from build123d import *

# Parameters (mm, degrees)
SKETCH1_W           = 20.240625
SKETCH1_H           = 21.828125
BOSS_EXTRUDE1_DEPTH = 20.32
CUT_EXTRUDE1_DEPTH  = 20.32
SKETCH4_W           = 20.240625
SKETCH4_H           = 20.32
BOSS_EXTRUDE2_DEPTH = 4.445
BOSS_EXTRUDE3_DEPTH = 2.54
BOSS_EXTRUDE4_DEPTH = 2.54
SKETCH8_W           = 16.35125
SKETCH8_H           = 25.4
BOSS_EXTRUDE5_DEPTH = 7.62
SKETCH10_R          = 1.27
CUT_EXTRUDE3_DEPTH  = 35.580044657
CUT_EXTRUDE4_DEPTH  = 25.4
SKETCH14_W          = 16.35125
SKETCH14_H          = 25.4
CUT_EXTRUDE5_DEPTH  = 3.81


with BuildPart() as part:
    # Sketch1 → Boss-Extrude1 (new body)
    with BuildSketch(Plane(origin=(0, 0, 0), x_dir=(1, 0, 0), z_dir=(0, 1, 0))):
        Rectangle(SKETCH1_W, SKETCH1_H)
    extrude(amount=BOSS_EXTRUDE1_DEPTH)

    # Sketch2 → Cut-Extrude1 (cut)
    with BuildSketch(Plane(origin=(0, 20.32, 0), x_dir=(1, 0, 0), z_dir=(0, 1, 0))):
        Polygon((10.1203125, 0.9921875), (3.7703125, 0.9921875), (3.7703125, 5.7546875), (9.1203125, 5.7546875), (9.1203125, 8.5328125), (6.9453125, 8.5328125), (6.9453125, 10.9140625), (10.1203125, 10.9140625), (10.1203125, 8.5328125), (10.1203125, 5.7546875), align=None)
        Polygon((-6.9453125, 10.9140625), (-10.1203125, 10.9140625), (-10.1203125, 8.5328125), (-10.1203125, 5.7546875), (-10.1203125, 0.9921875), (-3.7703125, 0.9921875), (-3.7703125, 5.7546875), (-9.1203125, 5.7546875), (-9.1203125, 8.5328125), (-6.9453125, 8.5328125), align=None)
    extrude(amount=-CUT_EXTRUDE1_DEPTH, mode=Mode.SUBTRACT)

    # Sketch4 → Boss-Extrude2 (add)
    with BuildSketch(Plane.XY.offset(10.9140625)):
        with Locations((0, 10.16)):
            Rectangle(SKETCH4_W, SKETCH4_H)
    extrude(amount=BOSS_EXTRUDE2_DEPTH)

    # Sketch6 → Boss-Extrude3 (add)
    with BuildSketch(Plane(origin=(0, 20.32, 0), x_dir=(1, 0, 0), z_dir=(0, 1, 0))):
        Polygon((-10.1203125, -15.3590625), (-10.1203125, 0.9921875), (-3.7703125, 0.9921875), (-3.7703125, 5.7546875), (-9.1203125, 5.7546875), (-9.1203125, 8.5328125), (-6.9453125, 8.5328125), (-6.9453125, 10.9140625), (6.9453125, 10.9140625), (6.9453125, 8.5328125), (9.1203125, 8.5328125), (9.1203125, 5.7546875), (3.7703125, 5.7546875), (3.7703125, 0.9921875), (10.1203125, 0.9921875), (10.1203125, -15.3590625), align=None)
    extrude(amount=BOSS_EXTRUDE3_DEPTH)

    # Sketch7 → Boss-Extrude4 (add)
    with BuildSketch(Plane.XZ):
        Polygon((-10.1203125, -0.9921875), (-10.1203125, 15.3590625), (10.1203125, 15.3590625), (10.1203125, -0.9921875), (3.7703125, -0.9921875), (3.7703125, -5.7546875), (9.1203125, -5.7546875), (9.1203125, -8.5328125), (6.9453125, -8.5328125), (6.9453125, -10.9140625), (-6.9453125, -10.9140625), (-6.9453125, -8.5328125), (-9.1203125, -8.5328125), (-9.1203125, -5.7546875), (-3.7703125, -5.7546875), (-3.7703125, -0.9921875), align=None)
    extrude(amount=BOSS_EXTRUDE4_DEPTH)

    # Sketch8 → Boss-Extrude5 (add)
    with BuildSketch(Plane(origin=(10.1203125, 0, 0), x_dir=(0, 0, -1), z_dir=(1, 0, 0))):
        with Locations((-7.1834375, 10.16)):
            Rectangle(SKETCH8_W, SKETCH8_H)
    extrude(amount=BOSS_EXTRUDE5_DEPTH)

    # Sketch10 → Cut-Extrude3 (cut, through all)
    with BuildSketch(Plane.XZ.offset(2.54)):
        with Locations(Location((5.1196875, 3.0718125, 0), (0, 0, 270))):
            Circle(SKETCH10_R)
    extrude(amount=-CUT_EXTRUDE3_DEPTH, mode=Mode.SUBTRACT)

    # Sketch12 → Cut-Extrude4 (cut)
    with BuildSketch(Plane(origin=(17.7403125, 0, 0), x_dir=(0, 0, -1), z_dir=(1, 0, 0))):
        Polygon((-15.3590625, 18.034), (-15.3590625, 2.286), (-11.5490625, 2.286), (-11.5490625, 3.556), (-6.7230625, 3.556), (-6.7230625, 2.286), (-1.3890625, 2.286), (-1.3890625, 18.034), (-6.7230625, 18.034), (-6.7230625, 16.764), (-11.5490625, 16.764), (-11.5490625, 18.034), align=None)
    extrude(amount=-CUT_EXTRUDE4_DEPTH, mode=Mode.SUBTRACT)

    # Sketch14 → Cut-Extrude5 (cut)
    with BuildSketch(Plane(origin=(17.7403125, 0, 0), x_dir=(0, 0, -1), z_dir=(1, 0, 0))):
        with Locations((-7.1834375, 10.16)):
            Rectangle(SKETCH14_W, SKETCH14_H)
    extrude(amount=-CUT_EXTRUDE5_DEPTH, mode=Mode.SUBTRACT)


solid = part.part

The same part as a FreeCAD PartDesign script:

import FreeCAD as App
import Part
import Sketcher
Q = App.Units.Quantity

doc = App.newDocument("Part")
body = doc.addObject("PartDesign::Body", "Body")

# Sketch on XZ plane
sketch1 = doc.addObject("Sketcher::SketchObject", "Sketch")
body.addObject(sketch1)
sketch1.AttachmentSupport = (doc.XZ_Plane, [""])
sketch1.MapMode = "FlatFace"
sketch1.addGeometry([
    Part.LineSegment(App.Vector(-10, -11, 0), App.Vector(-10, 11, 0)),
    Part.LineSegment(App.Vector(-10, 11, 0), App.Vector(10, 11, 0)),
    Part.LineSegment(App.Vector(10, 11, 0), App.Vector(10, -11, 0)),
    Part.LineSegment(App.Vector(10, -11, 0), App.Vector(-10, -11, 0)),
], False)
sketch1.addConstraint([
    Sketcher.Constraint("Coincident", 0, 2, 1, 1),
    Sketcher.Constraint("Coincident", 1, 2, 2, 1),
    Sketcher.Constraint("Coincident", 2, 2, 3, 1),
    Sketcher.Constraint("Coincident", 3, 2, 0, 1),
    Sketcher.Constraint("Vertical", 0),
    Sketcher.Constraint("Horizontal", 1),
    Sketcher.Constraint("Vertical", 2),
    Sketcher.Constraint("Horizontal", 3),
    Sketcher.Constraint("Symmetric", 0, 2, 2, 2, -1, 1),
    Sketcher.Constraint("DistanceX", 1, 1, 1, 2, Q("0.796875 in")),
    Sketcher.Constraint("DistanceY", 0, 1, 0, 2, Q("0.859375 in")),
])
pad1 = doc.addObject("PartDesign::Pad", "Pad")
body.addObject(pad1)
pad1.Profile = sketch1
pad1.Length = Q("0.8 in")
pad1.Reversed = True

# Sketch on XZ plane
sketch2 = doc.addObject("Sketcher::SketchObject", "Sketch001")
body.addObject(sketch2)
sketch2.AttachmentSupport = (doc.XZ_Plane, [""])
sketch2.MapMode = "FlatFace"
sketch2.AttachmentOffset = App.Placement(App.Vector(0, 0, -0.8 * 25.4), App.Rotation())
sketch2.addGeometry([
    Part.LineSegment(App.Vector(3.8, -1, 0), App.Vector(10.1, -1, 0)),  # 0
    Part.LineSegment(App.Vector(10.1, -1, 0), App.Vector(10.1, -10.9, 0)),  # 1
    Part.LineSegment(App.Vector(10.1, -10.9, 0), App.Vector(6.9, -10.9, 0)),  # 2
    Part.LineSegment(App.Vector(6.9, -10.9, 0), App.Vector(6.9, -8.5, 0)),  # 3
    Part.LineSegment(App.Vector(6.9, -8.5, 0), App.Vector(9.1, -8.5, 0)),  # 4
    Part.LineSegment(App.Vector(9.1, -8.5, 0), App.Vector(9.1, -5.8, 0)),  # 5
    Part.LineSegment(App.Vector(9.1, -5.8, 0), App.Vector(3.8, -5.8, 0)),  # 6
    Part.LineSegment(App.Vector(3.8, -5.8, 0), App.Vector(3.8, -1, 0)),  # 7
    Part.LineSegment(App.Vector(-6.9, -10.9, 0), App.Vector(-10.1, -10.9, 0)),  # 8
    Part.LineSegment(App.Vector(-10.1, -10.9, 0), App.Vector(-10.1, -1, 0)),  # 9
    Part.LineSegment(App.Vector(-10.1, -1, 0), App.Vector(-3.8, -1, 0)),  # 10
    Part.LineSegment(App.Vector(-3.8, -1, 0), App.Vector(-3.8, -5.8, 0)),  # 11
    Part.LineSegment(App.Vector(-3.8, -5.8, 0), App.Vector(-9.1, -5.8, 0)),  # 12
    Part.LineSegment(App.Vector(-9.1, -5.8, 0), App.Vector(-9.1, -8.5, 0)),  # 13
    Part.LineSegment(App.Vector(-9.1, -8.5, 0), App.Vector(-6.9, -8.5, 0)),  # 14
    Part.LineSegment(App.Vector(-6.9, -8.5, 0), App.Vector(-6.9, -10.9, 0)),  # 15
], False)
sketch2.addConstraint([
    Sketcher.Constraint("Coincident", 0, 2, 1, 1),
    Sketcher.Constraint("Coincident", 1, 2, 2, 1),
    Sketcher.Constraint("Coincident", 2, 2, 3, 1),
    Sketcher.Constraint("Coincident", 3, 2, 4, 1),
    Sketcher.Constraint("Coincident", 4, 2, 5, 1),
    Sketcher.Constraint("Coincident", 5, 2, 6, 1),
    Sketcher.Constraint("Coincident", 6, 2, 7, 1),
    Sketcher.Constraint("Coincident", 7, 2, 0, 1),
    Sketcher.Constraint("Coincident", 8, 2, 9, 1),
    Sketcher.Constraint("Coincident", 9, 2, 10, 1),
    Sketcher.Constraint("Coincident", 10, 2, 11, 1),
    Sketcher.Constraint("Coincident", 11, 2, 12, 1),
    Sketcher.Constraint("Coincident", 12, 2, 13, 1),
    Sketcher.Constraint("Coincident", 13, 2, 14, 1),
    Sketcher.Constraint("Coincident", 14, 2, 15, 1),
    Sketcher.Constraint("Coincident", 15, 2, 8, 1),
    Sketcher.Constraint("Horizontal", 0),
    Sketcher.Constraint("Vertical", 1),
    Sketcher.Constraint("Horizontal", 2),
    Sketcher.Constraint("Vertical", 3),
    Sketcher.Constraint("Horizontal", 4),
    Sketcher.Constraint("Vertical", 5),
    Sketcher.Constraint("Horizontal", 6),
    Sketcher.Constraint("Vertical", 7),
    Sketcher.Constraint("Horizontal", 8),
    Sketcher.Constraint("Vertical", 9),
    Sketcher.Constraint("Horizontal", 10),
    Sketcher.Constraint("Vertical", 11),
    Sketcher.Constraint("Horizontal", 12),
    Sketcher.Constraint("Vertical", 13),
    Sketcher.Constraint("Horizontal", 14),
    Sketcher.Constraint("Vertical", 15),
    Sketcher.Constraint("Symmetric", 1, 2, 8, 2, -2),
    Sketcher.Constraint("Symmetric", 7, 2, 10, 2, -2),
    Sketcher.Constraint("Symmetric", 5, 2, 12, 2, -2),
    Sketcher.Constraint("Symmetric", 3, 2, 14, 2, -2),
    Sketcher.Constraint("DistanceX", 0, 1, 0, 2, Q("0.25 in")),
    Sketcher.Constraint("DistanceX", 2, 2, 2, 1, Q("0.125 in")),
    Sketcher.Constraint("DistanceY", 1, 2, 1, 1, Q("0.390625 in")),
    Sketcher.Constraint("DistanceY", 3, 1, 3, 2, Q("0.09375 in")),
    Sketcher.Constraint("DistanceY", 5, 1, 5, 2, Q("0.109375 in")),
    Sketcher.Constraint("DistanceX", 8, 2, 6, 2, Q("0.546875 in")),
    Sketcher.Constraint("DistanceX", 4, 1, 4, 2, 2.175),
    Sketcher.Constraint("DistanceY", 0, 2, -1, 1, 0.992188),
])
pocket1 = doc.addObject("PartDesign::Pocket", "Pocket")
body.addObject(pocket1)
pocket1.Profile = sketch2
pocket1.Length = Q("0.8 in")
pocket1.Reversed = True

# Sketch on XY plane
sketch3 = doc.addObject("Sketcher::SketchObject", "Sketch002")
body.addObject(sketch3)
sketch3.AttachmentSupport = (doc.XY_Plane, [""])
sketch3.MapMode = "FlatFace"
sketch3.AttachmentOffset = App.Placement(App.Vector(0, 0, 10.914062), App.Rotation())
sketch3.addGeometry([
    Part.LineSegment(App.Vector(-10, 20, 0), App.Vector(-10, 0, 0)),
    Part.LineSegment(App.Vector(-10, 0, 0), App.Vector(10, 0, 0)),
    Part.LineSegment(App.Vector(10, 0, 0), App.Vector(10, 20, 0)),
    Part.LineSegment(App.Vector(10, 20, 0), App.Vector(-10, 20, 0)),
], False)
sketch3.addConstraint([
    Sketcher.Constraint("Coincident", 0, 2, 1, 1),
    Sketcher.Constraint("Coincident", 1, 2, 2, 1),
    Sketcher.Constraint("Coincident", 2, 2, 3, 1),
    Sketcher.Constraint("Coincident", 3, 2, 0, 1),
    Sketcher.Constraint("Vertical", 0),
    Sketcher.Constraint("Horizontal", 1),
    Sketcher.Constraint("Vertical", 2),
    Sketcher.Constraint("Horizontal", 3),
    Sketcher.Constraint("Symmetric", 0, 2, 1, 2, -1, 1),
    Sketcher.Constraint("DistanceY", 0, 2, 0, 1, Q("0.8 in")),
    Sketcher.Constraint("DistanceX", 1, 1, 1, 2, Q("0.796875 in")),
])
pad2 = doc.addObject("PartDesign::Pad", "Pad001")
body.addObject(pad2)
pad2.Profile = sketch3
pad2.Length = Q("0.175 in")

# Sketch on XZ plane
sketch4 = doc.addObject("Sketcher::SketchObject", "Sketch003")
body.addObject(sketch4)
sketch4.AttachmentSupport = (doc.XZ_Plane, [""])
sketch4.MapMode = "FlatFace"
sketch4.AttachmentOffset = App.Placement(App.Vector(0, 0, -0.8 * 25.4), App.Rotation())
sketch4.addGeometry([
    Part.LineSegment(App.Vector(-10.1, -1, 0), App.Vector(-10.1, 15.4, 0)),  # 0
    Part.LineSegment(App.Vector(-10.1, 15.4, 0), App.Vector(10.1, 15.4, 0)),  # 1
    Part.LineSegment(App.Vector(10.1, 15.4, 0), App.Vector(10.1, -1, 0)),  # 2
    Part.LineSegment(App.Vector(10.1, -1, 0), App.Vector(3.8, -1, 0)),  # 3
    Part.LineSegment(App.Vector(3.8, -1, 0), App.Vector(3.8, -5.8, 0)),  # 4
    Part.LineSegment(App.Vector(3.8, -5.8, 0), App.Vector(9.1, -5.8, 0)),  # 5
    Part.LineSegment(App.Vector(9.1, -5.8, 0), App.Vector(9.1, -8.5, 0)),  # 6
    Part.LineSegment(App.Vector(9.1, -8.5, 0), App.Vector(6.9, -8.5, 0)),  # 7
    Part.LineSegment(App.Vector(6.9, -8.5, 0), App.Vector(6.9, -10.9, 0)),  # 8
    Part.LineSegment(App.Vector(6.9, -10.9, 0), App.Vector(-6.9, -10.9, 0)),  # 9
    Part.LineSegment(App.Vector(-6.9, -10.9, 0), App.Vector(-6.9, -8.5, 0)),  # 10
    Part.LineSegment(App.Vector(-6.9, -8.5, 0), App.Vector(-9.1, -8.5, 0)),  # 11
    Part.LineSegment(App.Vector(-9.1, -8.5, 0), App.Vector(-9.1, -5.8, 0)),  # 12
    Part.LineSegment(App.Vector(-9.1, -5.8, 0), App.Vector(-3.8, -5.8, 0)),  # 13
    Part.LineSegment(App.Vector(-3.8, -5.8, 0), App.Vector(-3.8, -1, 0)),  # 14
    Part.LineSegment(App.Vector(-3.8, -1, 0), App.Vector(-10.1, -1, 0)),  # 15
], False)
sketch4.addConstraint([
    Sketcher.Constraint("Coincident", 0, 2, 1, 1),
    Sketcher.Constraint("Coincident", 1, 2, 2, 1),
    Sketcher.Constraint("Coincident", 2, 2, 3, 1),
    Sketcher.Constraint("Coincident", 3, 2, 4, 1),
    Sketcher.Constraint("Coincident", 4, 2, 5, 1),
    Sketcher.Constraint("Coincident", 5, 2, 6, 1),
    Sketcher.Constraint("Coincident", 6, 2, 7, 1),
    Sketcher.Constraint("Coincident", 7, 2, 8, 1),
    Sketcher.Constraint("Coincident", 8, 2, 9, 1),
    Sketcher.Constraint("Coincident", 9, 2, 10, 1),
    Sketcher.Constraint("Coincident", 10, 2, 11, 1),
    Sketcher.Constraint("Coincident", 11, 2, 12, 1),
    Sketcher.Constraint("Coincident", 12, 2, 13, 1),
    Sketcher.Constraint("Coincident", 13, 2, 14, 1),
    Sketcher.Constraint("Coincident", 14, 2, 15, 1),
    Sketcher.Constraint("Coincident", 15, 2, 0, 1),
    Sketcher.Constraint("Vertical", 0),
    Sketcher.Constraint("Horizontal", 1),
    Sketcher.Constraint("Vertical", 2),
    Sketcher.Constraint("Horizontal", 3),
    Sketcher.Constraint("Vertical", 4),
    Sketcher.Constraint("Horizontal", 5),
    Sketcher.Constraint("Vertical", 6),
    Sketcher.Constraint("Horizontal", 7),
    Sketcher.Constraint("Vertical", 8),
    Sketcher.Constraint("Horizontal", 9),
    Sketcher.Constraint("Vertical", 10),
    Sketcher.Constraint("Horizontal", 11),
    Sketcher.Constraint("Vertical", 12),
    Sketcher.Constraint("Horizontal", 13),
    Sketcher.Constraint("Vertical", 14),
    Sketcher.Constraint("Horizontal", 15),
    Sketcher.Constraint("Symmetric", 7, 2, 10, 2, -2),
    Sketcher.Constraint("Symmetric", 5, 2, 12, 2, -2),
    Sketcher.Constraint("Symmetric", 3, 2, 14, 2, -2),
    Sketcher.Constraint("Equal", 3, 15),
    Sketcher.Constraint("DistanceX", 3, 2, 3, 1, Q("0.25 in")),
    Sketcher.Constraint("DistanceX", 1, 1, 1, 2, Q("0.796875 in")),
    Sketcher.Constraint("DistanceX", 9, 2, 9, 1, Q("0.546875 in")),
    Sketcher.Constraint("DistanceY", 4, 2, 4, 1, Q("0.1875 in")),
    Sketcher.Constraint("DistanceY", 6, 2, 6, 1, Q("0.109375 in")),
    Sketcher.Constraint("DistanceY", 8, 2, 8, 1, Q("0.09375 in")),
    Sketcher.Constraint("DistanceX", 5, 1, 5, 2, 5.35),
    Sketcher.Constraint("DistanceY", 0, 1, 0, 2, 16.35125),
    Sketcher.Constraint("DistanceY", -1, 1, 0, 2, 15.359063),
])
pad3 = doc.addObject("PartDesign::Pad", "Pad002")
body.addObject(pad3)
pad3.Profile = sketch4
pad3.Length = Q("0.1 in")
pad3.Reversed = True

# Sketch on XZ plane
sketch5 = doc.addObject("Sketcher::SketchObject", "Sketch004")
body.addObject(sketch5)
sketch5.AttachmentSupport = (doc.XZ_Plane, [""])
sketch5.MapMode = "FlatFace"
sketch5.addGeometry([
    Part.LineSegment(App.Vector(-10.1, 15.4, 0), App.Vector(-10.1, -1, 0)),  # 0
    Part.LineSegment(App.Vector(-10.1, -1, 0), App.Vector(-3.8, -1, 0)),  # 1
    Part.LineSegment(App.Vector(-3.8, -1, 0), App.Vector(-3.8, -5.8, 0)),  # 2
    Part.LineSegment(App.Vector(-3.8, -5.8, 0), App.Vector(-9.1, -5.8, 0)),  # 3
    Part.LineSegment(App.Vector(-9.1, -5.8, 0), App.Vector(-9.1, -8.5, 0)),  # 4
    Part.LineSegment(App.Vector(-9.1, -8.5, 0), App.Vector(-6.9, -8.5, 0)),  # 5
    Part.LineSegment(App.Vector(-6.9, -8.5, 0), App.Vector(-6.9, -10.9, 0)),  # 6
    Part.LineSegment(App.Vector(-6.9, -10.9, 0), App.Vector(6.9, -10.9, 0)),  # 7
    Part.LineSegment(App.Vector(6.9, -10.9, 0), App.Vector(6.9, -8.5, 0)),  # 8
    Part.LineSegment(App.Vector(6.9, -8.5, 0), App.Vector(9.1, -8.5, 0)),  # 9
    Part.LineSegment(App.Vector(9.1, -8.5, 0), App.Vector(9.1, -5.8, 0)),  # 10
    Part.LineSegment(App.Vector(9.1, -5.8, 0), App.Vector(3.8, -5.8, 0)),  # 11
    Part.LineSegment(App.Vector(3.8, -5.8, 0), App.Vector(3.8, -1, 0)),  # 12
    Part.LineSegment(App.Vector(3.8, -1, 0), App.Vector(10.1, -1, 0)),  # 13
    Part.LineSegment(App.Vector(10.1, -1, 0), App.Vector(10.1, 15.4, 0)),  # 14
    Part.LineSegment(App.Vector(10.1, 15.4, 0), App.Vector(-10.1, 15.4, 0)),  # 15
], False)
sketch5.addConstraint([
    Sketcher.Constraint("Coincident", 0, 2, 1, 1),
    Sketcher.Constraint("Coincident", 1, 2, 2, 1),
    Sketcher.Constraint("Coincident", 2, 2, 3, 1),
    Sketcher.Constraint("Coincident", 3, 2, 4, 1),
    Sketcher.Constraint("Coincident", 4, 2, 5, 1),
    Sketcher.Constraint("Coincident", 5, 2, 6, 1),
    Sketcher.Constraint("Coincident", 6, 2, 7, 1),
    Sketcher.Constraint("Coincident", 7, 2, 8, 1),
    Sketcher.Constraint("Coincident", 8, 2, 9, 1),
    Sketcher.Constraint("Coincident", 9, 2, 10, 1),
    Sketcher.Constraint("Coincident", 10, 2, 11, 1),
    Sketcher.Constraint("Coincident", 11, 2, 12, 1),
    Sketcher.Constraint("Coincident", 12, 2, 13, 1),
    Sketcher.Constraint("Coincident", 13, 2, 14, 1),
    Sketcher.Constraint("Coincident", 14, 2, 15, 1),
    Sketcher.Constraint("Coincident", 15, 2, 0, 1),
    Sketcher.Constraint("Vertical", 0),
    Sketcher.Constraint("Horizontal", 1),
    Sketcher.Constraint("Vertical", 2),
    Sketcher.Constraint("Horizontal", 3),
    Sketcher.Constraint("Vertical", 4),
    Sketcher.Constraint("Horizontal", 5),
    Sketcher.Constraint("Vertical", 6),
    Sketcher.Constraint("Horizontal", 7),
    Sketcher.Constraint("Vertical", 8),
    Sketcher.Constraint("Horizontal", 9),
    Sketcher.Constraint("Vertical", 10),
    Sketcher.Constraint("Horizontal", 11),
    Sketcher.Constraint("Vertical", 12),
    Sketcher.Constraint("Horizontal", 13),
    Sketcher.Constraint("Vertical", 14),
    Sketcher.Constraint("Horizontal", 15),
    Sketcher.Constraint("Symmetric", 5, 2, 8, 2, -2),
    Sketcher.Constraint("Symmetric", 3, 2, 10, 2, -2),
    Sketcher.Constraint("Symmetric", 1, 2, 12, 2, -2),
    Sketcher.Constraint("Equal", 1, 13),
    Sketcher.Constraint("DistanceX", 1, 1, 1, 2, Q("0.25 in")),
    Sketcher.Constraint("DistanceX", 7, 1, 7, 2, Q("0.546875 in")),
    Sketcher.Constraint("DistanceX", 15, 2, 15, 1, Q("0.796875 in")),
    Sketcher.Constraint("DistanceY", 2, 2, 2, 1, Q("0.1875 in")),
    Sketcher.Constraint("DistanceY", 4, 2, 4, 1, Q("0.109375 in")),
    Sketcher.Constraint("DistanceY", 6, 2, 6, 1, Q("0.09375 in")),
    Sketcher.Constraint("DistanceX", 3, 2, 3, 1, 5.35),
    Sketcher.Constraint("DistanceY", 0, 2, 0, 1, 16.35125),
    Sketcher.Constraint("DistanceY", 0, 2, -1, 1, 0.992188),
])
pad4 = doc.addObject("PartDesign::Pad", "Pad003")
body.addObject(pad4)
pad4.Profile = sketch5
pad4.Length = Q("0.1 in")

# Sketch on YZ plane
sketch6 = doc.addObject("Sketcher::SketchObject", "Sketch005")
body.addObject(sketch6)
sketch6.AttachmentSupport = (doc.YZ_Plane, [""])
sketch6.MapMode = "FlatFace"
sketch6.AttachmentOffset = App.Placement(App.Vector(0, 0, 10.120313), App.Rotation())
sketch6.addGeometry([
    Part.LineSegment(App.Vector(23, 15, 0), App.Vector(-3, 15, 0)),
    Part.LineSegment(App.Vector(-3, 15, 0), App.Vector(-3, -1, 0)),
    Part.LineSegment(App.Vector(-3, -1, 0), App.Vector(23, -1, 0)),
    Part.LineSegment(App.Vector(23, -1, 0), App.Vector(23, 15, 0)),
], False)
sketch6.addConstraint([
    Sketcher.Constraint("Coincident", 0, 2, 1, 1),
    Sketcher.Constraint("Coincident", 1, 2, 2, 1),
    Sketcher.Constraint("Coincident", 2, 2, 3, 1),
    Sketcher.Constraint("Coincident", 3, 2, 0, 1),
    Sketcher.Constraint("Horizontal", 0),
    Sketcher.Constraint("Vertical", 1),
    Sketcher.Constraint("Horizontal", 2),
    Sketcher.Constraint("Vertical", 3),
    Sketcher.Constraint("DistanceX", 0, 2, 0, 1, Q("1 in")),
    Sketcher.Constraint("DistanceX", 0, 2, -1, 1, Q("0.1 in")),
    Sketcher.Constraint("DistanceY", 1, 2, 1, 1, 16.35125),
    Sketcher.Constraint("DistanceY", -1, 1, 0, 2, 15.359063),
])
pad5 = doc.addObject("PartDesign::Pad", "Pad004")
body.addObject(pad5)
pad5.Profile = sketch6
pad5.Length = Q("0.3 in")

# Sketch on XZ plane
sketch7 = doc.addObject("Sketcher::SketchObject", "Sketch006")
body.addObject(sketch7)
sketch7.AttachmentSupport = (doc.XZ_Plane, [""])
sketch7.MapMode = "FlatFace"
sketch7.AttachmentOffset = App.Placement(App.Vector(0, 0, 0.1 * 25.4), App.Rotation())
sketch7.addGeometry(Part.Circle(App.Vector(5.1, 3.1, 0), App.Vector(0, 0, 1), 1.3), False)
sketch7.addConstraint([
    Sketcher.Constraint("Diameter", 0, Q("0.1 in")),
    Sketcher.Constraint("DistanceX", -1, 1, 0, 3, 5.119688),
    Sketcher.Constraint("DistanceY", -1, 1, 0, 3, 3.071813),
])
pocket2 = doc.addObject("PartDesign::Pocket", "Pocket001")
body.addObject(pocket2)
pocket2.Profile = sketch7
pocket2.Type = "ThroughAll"

# Sketch on YZ plane
sketch8 = doc.addObject("Sketcher::SketchObject", "Sketch007")
body.addObject(sketch8)
sketch8.AttachmentSupport = (doc.YZ_Plane, [""])
sketch8.MapMode = "FlatFace"
sketch8.AttachmentOffset = App.Placement(App.Vector(0, 0, 17.740313), App.Rotation())
sketch8.addGeometry([
    Part.LineSegment(App.Vector(18, 15.4, 0), App.Vector(2.3, 15.4, 0)),  # 0
    Part.LineSegment(App.Vector(2.3, 15.4, 0), App.Vector(2.3, 11.5, 0)),  # 1
    Part.LineSegment(App.Vector(2.3, 11.5, 0), App.Vector(3.6, 11.5, 0)),  # 2
    Part.LineSegment(App.Vector(3.6, 11.5, 0), App.Vector(3.6, 6.7, 0)),  # 3
    Part.LineSegment(App.Vector(3.6, 6.7, 0), App.Vector(2.3, 6.7, 0)),  # 4
    Part.LineSegment(App.Vector(2.3, 6.7, 0), App.Vector(2.3, 1.4, 0)),  # 5
    Part.LineSegment(App.Vector(2.3, 1.4, 0), App.Vector(18, 1.4, 0)),  # 6
    Part.LineSegment(App.Vector(18, 1.4, 0), App.Vector(18, 6.7, 0)),  # 7
    Part.LineSegment(App.Vector(18, 6.7, 0), App.Vector(16.8, 6.7, 0)),  # 8
    Part.LineSegment(App.Vector(16.8, 6.7, 0), App.Vector(16.8, 11.5, 0)),  # 9
    Part.LineSegment(App.Vector(16.8, 11.5, 0), App.Vector(18, 11.5, 0)),  # 10
    Part.LineSegment(App.Vector(18, 11.5, 0), App.Vector(18, 15.4, 0)),  # 11
], False)
sketch8.addConstraint([
    Sketcher.Constraint("Coincident", 0, 2, 1, 1),
    Sketcher.Constraint("Coincident", 1, 2, 2, 1),
    Sketcher.Constraint("Coincident", 2, 2, 3, 1),
    Sketcher.Constraint("Coincident", 3, 2, 4, 1),
    Sketcher.Constraint("Coincident", 4, 2, 5, 1),
    Sketcher.Constraint("Coincident", 5, 2, 6, 1),
    Sketcher.Constraint("Coincident", 6, 2, 7, 1),
    Sketcher.Constraint("Coincident", 7, 2, 8, 1),
    Sketcher.Constraint("Coincident", 8, 2, 9, 1),
    Sketcher.Constraint("Coincident", 9, 2, 10, 1),
    Sketcher.Constraint("Coincident", 10, 2, 11, 1),
    Sketcher.Constraint("Coincident", 11, 2, 0, 1),
    Sketcher.Constraint("Horizontal", 0),
    Sketcher.Constraint("Vertical", 1),
    Sketcher.Constraint("Horizontal", 2),
    Sketcher.Constraint("Vertical", 3),
    Sketcher.Constraint("Horizontal", 4),
    Sketcher.Constraint("Vertical", 5),
    Sketcher.Constraint("Horizontal", 6),
    Sketcher.Constraint("Vertical", 7),
    Sketcher.Constraint("Horizontal", 8),
    Sketcher.Constraint("Vertical", 9),
    Sketcher.Constraint("Horizontal", 10),
    Sketcher.Constraint("Vertical", 11),
    Sketcher.Constraint("Horizontal", 4, 2, 7, 2),
    Sketcher.Constraint("Horizontal", 2, 2, 9, 2),
    Sketcher.Constraint("Vertical", 1, 2, 4, 2),
    Sketcher.Constraint("Vertical", 7, 2, 10, 2),
    Sketcher.Constraint("Equal", 4, 8),
    Sketcher.Constraint("DistanceX", 0, 2, 0, 1, Q("0.62 in")),
    Sketcher.Constraint("DistanceX", 2, 1, 2, 2, Q("0.05 in")),
    Sketcher.Constraint("DistanceY", 1, 2, 1, 1, Q("0.15 in")),
    Sketcher.Constraint("DistanceY", 3, 2, 3, 1, Q("0.19 in")),
    Sketcher.Constraint("DistanceY", 5, 2, 5, 1, Q("0.21 in")),
    Sketcher.Constraint("DistanceX", -1, 1, 0, 2, Q("0.09 in")),
    Sketcher.Constraint("DistanceY", -1, 1, 0, 2, 15.359063),
])
pocket3 = doc.addObject("PartDesign::Pocket", "Pocket002")
body.addObject(pocket3)
pocket3.Profile = sketch8
pocket3.Length = Q("1 in")

# Sketch on YZ plane
sketch9 = doc.addObject("Sketcher::SketchObject", "Sketch008")
body.addObject(sketch9)
sketch9.AttachmentSupport = (doc.YZ_Plane, [""])
sketch9.MapMode = "FlatFace"
sketch9.AttachmentOffset = App.Placement(App.Vector(0, 0, 17.740313), App.Rotation())
sketch9.addGeometry([
    Part.LineSegment(App.Vector(23, 15, 0), App.Vector(-3, 15, 0)),
    Part.LineSegment(App.Vector(-3, 15, 0), App.Vector(-3, -1, 0)),
    Part.LineSegment(App.Vector(-3, -1, 0), App.Vector(23, -1, 0)),
    Part.LineSegment(App.Vector(23, -1, 0), App.Vector(23, 15, 0)),
], False)
sketch9.addConstraint([
    Sketcher.Constraint("Coincident", 0, 2, 1, 1),
    Sketcher.Constraint("Coincident", 1, 2, 2, 1),
    Sketcher.Constraint("Coincident", 2, 2, 3, 1),
    Sketcher.Constraint("Coincident", 3, 2, 0, 1),
    Sketcher.Constraint("Horizontal", 0),
    Sketcher.Constraint("Vertical", 1),
    Sketcher.Constraint("Horizontal", 2),
    Sketcher.Constraint("Vertical", 3),
    Sketcher.Constraint("DistanceX", 0, 2, 0, 1, Q("1 in")),
    Sketcher.Constraint("DistanceX", 0, 2, -1, 1, Q("0.1 in")),
    Sketcher.Constraint("DistanceY", 1, 2, 1, 1, 16.35125),
    Sketcher.Constraint("DistanceY", -1, 1, 0, 2, 15.359063),
])
pocket4 = doc.addObject("PartDesign::Pocket", "Pocket003")
body.addObject(pocket4)
pocket4.Profile = sketch9
pocket4.Length = Q("0.15 in")

doc.recompute()
